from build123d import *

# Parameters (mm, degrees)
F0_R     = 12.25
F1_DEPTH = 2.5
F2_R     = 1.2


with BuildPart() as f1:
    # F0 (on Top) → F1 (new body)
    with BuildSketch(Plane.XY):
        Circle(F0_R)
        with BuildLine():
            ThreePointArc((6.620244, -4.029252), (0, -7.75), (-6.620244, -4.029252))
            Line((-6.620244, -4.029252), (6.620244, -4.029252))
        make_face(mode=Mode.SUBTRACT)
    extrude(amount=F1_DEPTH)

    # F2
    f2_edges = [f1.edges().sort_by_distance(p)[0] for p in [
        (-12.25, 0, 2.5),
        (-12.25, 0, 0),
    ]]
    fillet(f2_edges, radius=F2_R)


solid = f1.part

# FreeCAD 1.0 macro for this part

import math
import FreeCAD as App
import Part
import Sketcher

V = App.Vector


def edges_at(feature, points):
    """Names of the edges that pass closest to the given points."""
    edges = feature.Shape.Edges
    near = lambda p: min(range(len(edges)), key=lambda i: edges[i].distToShape(Part.Vertex(*p))[0])
    return sorted({f"Edge{near(p) + 1}" for p in points})

doc = App.newDocument("Part")
body = doc.addObject("PartDesign::Body", "Body")

# Sketch on XY plane
sketch1 = body.newObject("Sketcher::SketchObject", "Sketch")
sketch1.AttachmentSupport = (doc.getObject("XY_Plane"), [""])
sketch1.MapMode = "FlatFace"
sketch1.addGeometry(Part.Circle(V(0, 0, 0), V(0, 0, 1), 12), False)
sketch1.addGeometry(Part.LineSegment(V(-7, -4, 0), V(7, -4, 0)), False)
sketch1.addGeometry(Part.ArcOfCircle(Part.Circle(V(0, 0, 0), V(0, 0, 1), 8), math.radians(-149), math.radians(-31)), False)
sketch1.addConstraint(Sketcher.Constraint("Coincident", 1, 1, 2, 1))
sketch1.addConstraint(Sketcher.Constraint("Coincident", 2, 2, 1, 2))
sketch1.addConstraint(Sketcher.Constraint("Horizontal", 1))
sketch1.addConstraint(Sketcher.Constraint("Coincident", 0, 3, -1, 1))
sketch1.addConstraint(Sketcher.Constraint("Coincident", 2, 3, -1, 1))
sketch1.addConstraint(Sketcher.Constraint("Diameter", 0, 24.5))
sketch1.addConstraint(Sketcher.Constraint("Radius", 2, 7.75))
sketch1.addConstraint(Sketcher.Constraint("DistanceX", 1, 1, 1, 2, 13.240488))
pad1 = body.newObject("PartDesign::Pad", "Pad")
pad1.Profile = sketch1
pad1.Length = 2.5
doc.recompute()

fillet = body.newObject("PartDesign::Fillet", "Fillet")
fillet.Base = (pad1, edges_at(pad1, [(-12.25, 0, 2.5), (-12.25, 0, 0)]))
fillet.Radius = 1.2

doc.recompute()
